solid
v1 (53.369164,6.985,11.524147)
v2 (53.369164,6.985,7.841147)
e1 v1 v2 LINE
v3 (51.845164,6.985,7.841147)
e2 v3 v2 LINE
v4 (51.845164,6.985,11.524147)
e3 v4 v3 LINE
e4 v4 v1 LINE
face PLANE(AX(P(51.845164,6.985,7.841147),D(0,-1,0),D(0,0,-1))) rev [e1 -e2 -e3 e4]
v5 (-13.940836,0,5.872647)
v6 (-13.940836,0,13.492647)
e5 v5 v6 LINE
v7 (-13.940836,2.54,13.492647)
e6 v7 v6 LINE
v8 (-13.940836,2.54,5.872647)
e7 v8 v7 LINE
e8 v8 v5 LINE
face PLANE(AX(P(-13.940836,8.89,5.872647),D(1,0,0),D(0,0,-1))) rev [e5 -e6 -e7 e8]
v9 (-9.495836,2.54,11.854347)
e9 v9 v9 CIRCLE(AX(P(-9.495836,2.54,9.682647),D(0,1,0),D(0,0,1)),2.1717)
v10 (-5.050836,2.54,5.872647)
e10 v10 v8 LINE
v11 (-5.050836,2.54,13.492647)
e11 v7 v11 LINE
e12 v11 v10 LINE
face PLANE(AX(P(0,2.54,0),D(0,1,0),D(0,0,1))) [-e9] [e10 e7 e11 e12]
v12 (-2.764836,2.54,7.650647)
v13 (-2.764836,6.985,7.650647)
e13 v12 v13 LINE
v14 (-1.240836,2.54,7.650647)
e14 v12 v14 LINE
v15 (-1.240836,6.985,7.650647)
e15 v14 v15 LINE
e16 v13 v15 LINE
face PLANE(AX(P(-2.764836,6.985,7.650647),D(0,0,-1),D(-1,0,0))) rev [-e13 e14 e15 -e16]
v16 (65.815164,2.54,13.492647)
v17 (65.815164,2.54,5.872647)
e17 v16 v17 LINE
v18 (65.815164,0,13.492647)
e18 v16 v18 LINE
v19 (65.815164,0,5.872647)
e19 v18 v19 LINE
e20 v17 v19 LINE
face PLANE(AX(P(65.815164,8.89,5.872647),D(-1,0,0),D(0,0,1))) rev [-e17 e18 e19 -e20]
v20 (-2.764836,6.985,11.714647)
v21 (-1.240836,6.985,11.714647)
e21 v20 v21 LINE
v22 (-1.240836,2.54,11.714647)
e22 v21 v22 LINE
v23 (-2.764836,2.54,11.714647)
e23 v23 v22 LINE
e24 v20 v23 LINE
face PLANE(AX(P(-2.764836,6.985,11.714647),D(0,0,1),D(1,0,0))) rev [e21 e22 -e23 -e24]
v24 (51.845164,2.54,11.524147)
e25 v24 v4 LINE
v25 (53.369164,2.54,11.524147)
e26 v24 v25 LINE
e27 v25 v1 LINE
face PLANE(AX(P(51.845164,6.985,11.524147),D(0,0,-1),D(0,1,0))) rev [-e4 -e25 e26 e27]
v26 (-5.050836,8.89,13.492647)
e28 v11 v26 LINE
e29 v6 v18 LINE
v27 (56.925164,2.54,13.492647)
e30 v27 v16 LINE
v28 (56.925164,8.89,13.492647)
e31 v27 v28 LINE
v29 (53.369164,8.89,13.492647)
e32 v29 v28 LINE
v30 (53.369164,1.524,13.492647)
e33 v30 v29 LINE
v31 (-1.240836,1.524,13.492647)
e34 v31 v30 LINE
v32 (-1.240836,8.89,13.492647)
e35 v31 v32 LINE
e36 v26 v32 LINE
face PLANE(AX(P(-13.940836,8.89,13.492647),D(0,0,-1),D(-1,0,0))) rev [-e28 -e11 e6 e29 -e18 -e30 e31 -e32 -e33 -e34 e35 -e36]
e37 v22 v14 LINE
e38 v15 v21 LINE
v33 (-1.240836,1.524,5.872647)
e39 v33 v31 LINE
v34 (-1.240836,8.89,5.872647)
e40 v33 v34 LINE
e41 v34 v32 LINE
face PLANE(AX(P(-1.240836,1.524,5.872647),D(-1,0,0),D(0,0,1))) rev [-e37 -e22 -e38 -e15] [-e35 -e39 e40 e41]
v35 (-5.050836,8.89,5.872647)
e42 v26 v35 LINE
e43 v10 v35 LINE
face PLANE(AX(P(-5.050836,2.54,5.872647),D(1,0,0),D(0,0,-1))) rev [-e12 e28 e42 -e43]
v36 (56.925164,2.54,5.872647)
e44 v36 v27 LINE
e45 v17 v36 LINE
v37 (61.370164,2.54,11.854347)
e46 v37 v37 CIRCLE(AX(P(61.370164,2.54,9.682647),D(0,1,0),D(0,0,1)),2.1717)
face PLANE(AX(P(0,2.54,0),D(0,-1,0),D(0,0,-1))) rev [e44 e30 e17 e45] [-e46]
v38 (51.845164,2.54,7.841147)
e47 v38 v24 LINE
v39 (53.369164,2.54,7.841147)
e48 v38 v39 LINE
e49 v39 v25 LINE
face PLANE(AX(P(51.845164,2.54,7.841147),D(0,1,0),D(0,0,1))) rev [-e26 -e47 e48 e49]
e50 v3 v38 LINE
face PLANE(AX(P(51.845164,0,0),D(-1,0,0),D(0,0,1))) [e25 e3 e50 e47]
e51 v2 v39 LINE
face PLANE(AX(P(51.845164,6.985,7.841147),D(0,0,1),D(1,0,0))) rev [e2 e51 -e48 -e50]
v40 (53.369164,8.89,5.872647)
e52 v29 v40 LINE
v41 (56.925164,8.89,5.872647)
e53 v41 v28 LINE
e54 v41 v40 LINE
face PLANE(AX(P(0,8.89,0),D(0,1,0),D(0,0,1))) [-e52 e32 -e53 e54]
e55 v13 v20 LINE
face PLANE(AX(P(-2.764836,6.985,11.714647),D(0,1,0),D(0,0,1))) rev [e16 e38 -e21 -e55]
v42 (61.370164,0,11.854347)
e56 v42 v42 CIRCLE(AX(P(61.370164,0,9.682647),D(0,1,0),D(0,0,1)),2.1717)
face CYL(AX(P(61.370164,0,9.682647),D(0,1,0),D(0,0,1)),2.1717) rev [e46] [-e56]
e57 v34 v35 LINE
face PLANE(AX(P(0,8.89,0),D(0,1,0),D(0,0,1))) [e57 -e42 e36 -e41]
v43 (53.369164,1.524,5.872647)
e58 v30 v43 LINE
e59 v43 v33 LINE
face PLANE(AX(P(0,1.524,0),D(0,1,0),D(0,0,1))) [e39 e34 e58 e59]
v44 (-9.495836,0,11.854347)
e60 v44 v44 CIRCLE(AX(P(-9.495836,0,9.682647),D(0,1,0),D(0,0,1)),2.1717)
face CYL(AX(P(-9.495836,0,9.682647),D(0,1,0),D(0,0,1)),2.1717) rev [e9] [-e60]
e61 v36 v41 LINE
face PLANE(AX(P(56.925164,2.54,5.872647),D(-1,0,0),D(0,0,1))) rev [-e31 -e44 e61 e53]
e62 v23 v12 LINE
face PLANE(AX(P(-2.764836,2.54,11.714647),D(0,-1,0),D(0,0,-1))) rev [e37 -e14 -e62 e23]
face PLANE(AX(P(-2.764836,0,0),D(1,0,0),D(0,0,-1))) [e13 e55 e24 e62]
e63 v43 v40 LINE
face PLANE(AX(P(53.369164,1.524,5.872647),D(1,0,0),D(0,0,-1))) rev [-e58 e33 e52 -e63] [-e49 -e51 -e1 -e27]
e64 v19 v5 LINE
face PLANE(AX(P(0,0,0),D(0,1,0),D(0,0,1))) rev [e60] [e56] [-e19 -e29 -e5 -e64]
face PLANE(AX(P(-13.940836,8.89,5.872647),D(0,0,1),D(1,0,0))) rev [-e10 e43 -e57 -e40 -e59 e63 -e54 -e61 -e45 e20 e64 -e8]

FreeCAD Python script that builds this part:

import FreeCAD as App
import Part
import Sketcher
Q = App.Units.Quantity


def add_polygon(sketch, points):
    """Adds a closed chain of lines whose ends are joined by coincident constraints."""
    first, n = sketch.GeometryCount, len(points)
    for a, b in zip(points, points[1:] + points[:1]):
        sketch.addGeometry(Part.LineSegment(App.Vector(*a, 0), App.Vector(*b, 0)), False)
    for i in range(n):
        sketch.addConstraint(Sketcher.Constraint("Coincident", first + i, 2, first + (i + 1) % n, 1))

doc = App.newDocument("Part")
body = doc.addObject("PartDesign::Body", "Body")

# Sketch on XZ plane
sketch1 = body.newObject("Sketcher::SketchObject", "Sketch")
sketch1.AttachmentSupport = (doc.getObject("XZ_Plane"), [""])
sketch1.MapMode = "FlatFace"
add_polygon(sketch1, [(-13.940836, 5.872647), (-13.940836, 13.492647), (65.815164, 13.492647), (65.815164, 5.872647)])  # lines 0-3
sketch1.addConstraint(Sketcher.Constraint("Vertical", 0))
sketch1.addConstraint(Sketcher.Constraint("Horizontal", 1))
sketch1.addConstraint(Sketcher.Constraint("Vertical", 2))
sketch1.addConstraint(Sketcher.Constraint("Horizontal", 3))
sketch1.addConstraint(Sketcher.Constraint("DistanceY", 0, 1, 0, 2, Q("0.3 in")))
sketch1.addConstraint(Sketcher.Constraint("DistanceX", 1, 1, 1, 2, Q("3.14 in")))
sketch1.addConstraint(Sketcher.Constraint("DistanceX", 0, 2, -1, 1, 13.940836))
sketch1.addConstraint(Sketcher.Constraint("DistanceY", -1, 1, 0, 2, 13.492647))
pad1 = body.newObject("PartDesign::Pad", "Pad")
pad1.Profile = sketch1
pad1.Length = Q("0.35 in")
pad1.Reversed = True

# Sketch on XZ plane
sketch2 = body.newObject("Sketcher::SketchObject", "Sketch001")
sketch2.AttachmentSupport = (doc.getObject("XZ_Plane"), [""])
sketch2.MapMode = "FlatFace"
sketch2.AttachmentOffset = App.Placement(App.Vector(0, 0, -0.35 * 25.4), App.Rotation())
add_polygon(sketch2, [(-13.940836, 5.872647), (-13.940836, 13.492647), (-5.050836, 13.492647), (-5.050836, 5.872647)])  # lines 0-3
sketch2.addConstraint(Sketcher.Constraint("Vertical", 0))
sketch2.addConstraint(Sketcher.Constraint("Horizontal", 1))
sketch2.addConstraint(Sketcher.Constraint("Vertical", 2))
sketch2.addConstraint(Sketcher.Constraint("Horizontal", 3))
sketch2.addConstraint(Sketcher.Constraint("DistanceY", 0, 1, 0, 2, Q("0.3 in")))
sketch2.addConstraint(Sketcher.Constraint("DistanceX", 1, 1, 1, 2, Q("0.35 in")))
sketch2.addConstraint(Sketcher.Constraint("DistanceX", 0, 2, -1, 1, 13.940836))
sketch2.addConstraint(Sketcher.Constraint("DistanceY", -1, 1, 0, 2, 13.492647))
pocket1 = body.newObject("PartDesign::Pocket", "Pocket")
pocket1.Profile = sketch2
pocket1.Length = Q("0.25 in")
pocket1.Reversed = True

# Sketch on XZ plane
sketch3 = body.newObject("Sketcher::SketchObject", "Sketch002")
sketch3.AttachmentSupport = (doc.getObject("XZ_Plane"), [""])
sketch3.MapMode = "FlatFace"
sketch3.AttachmentOffset = App.Placement(App.Vector(0, 0, -0.35 * 25.4), App.Rotation())
add_polygon(sketch3, [(56.925164, 5.872647), (56.925164, 13.492647), (65.815164, 13.492647), (65.815164, 5.872647)])  # lines 0-3
sketch3.addConstraint(Sketcher.Constraint("Vertical", 0))
sketch3.addConstraint(Sketcher.Constraint("Horizontal", 1))
sketch3.addConstraint(Sketcher.Constraint("Vertical", 2))
sketch3.addConstraint(Sketcher.Constraint("Horizontal", 3))
sketch3.addConstraint(Sketcher.Constraint("DistanceY", 0, 1, 0, 2, Q("0.3 in")))
sketch3.addConstraint(Sketcher.Constraint("DistanceX", 1, 1, 1, 2, Q("0.35 in")))
sketch3.addConstraint(Sketcher.Constraint("DistanceX", -1, 1, 0, 2, 56.925164))
sketch3.addConstraint(Sketcher.Constraint("DistanceY", -1, 1, 0, 2, 13.492647))
pocket2 = body.newObject("PartDesign::Pocket", "Pocket001")
pocket2.Profile = sketch3
pocket2.Length = Q("0.25 in")
pocket2.Reversed = True

# Sketch on XZ plane
sketch4 = body.newObject("Sketcher::SketchObject", "Sketch003")
sketch4.AttachmentSupport = (doc.getObject("XZ_Plane"), [""])
sketch4.MapMode = "FlatFace"
sketch4.AttachmentOffset = App.Placement(App.Vector(0, 0, -0.35 * 25.4), App.Rotation())
add_polygon(sketch4, [(-1.240836, 5.872647), (-1.240836, 13.492647), (53.369164, 13.492647), (53.369164, 5.872647)])  # lines 0-3
sketch4.addConstraint(Sketcher.Constraint("Vertical", 0))
sketch4.addConstraint(Sketcher.Constraint("Horizontal", 1))
sketch4.addConstraint(Sketcher.Constraint("Vertical", 2))
sketch4.addConstraint(Sketcher.Constraint("Horizontal", 3))
sketch4.addConstraint(Sketcher.Constraint("DistanceY", 0, 1, 0, 2, Q("0.3 in")))
sketch4.addConstraint(Sketcher.Constraint("DistanceX", 1, 1, 1, 2, Q("2.15 in")))
sketch4.addConstraint(Sketcher.Constraint("DistanceX", 0, 2, -1, 1, 1.240836))
sketch4.addConstraint(Sketcher.Constraint("DistanceY", -1, 1, 0, 2, 13.492647))
pocket3 = body.newObject("PartDesign::Pocket", "Pocket002")
pocket3.Profile = sketch4
pocket3.Length = Q("0.29 in")
pocket3.Reversed = True

# Sketch on YZ plane
sketch5 = body.newObject("Sketcher::SketchObject", "Sketch004")
sketch5.AttachmentSupport = (doc.getObject("YZ_Plane"), [""])
sketch5.MapMode = "FlatFace"
sketch5.AttachmentOffset = App.Placement(App.Vector(0, 0, -1.240836), App.Rotation())
add_polygon(sketch5, [(6.985, 11.714647), (2.54, 11.714647), (2.54, 7.650647), (6.985, 7.650647)])  # lines 0-3
sketch5.addConstraint(Sketcher.Constraint("Horizontal", 0))
sketch5.addConstraint(Sketcher.Constraint("Vertical", 1))
sketch5.addConstraint(Sketcher.Constraint("Horizontal", 2))
sketch5.addConstraint(Sketcher.Constraint("Vertical", 3))
sketch5.addConstraint(Sketcher.Constraint("DistanceY", 1, 2, 1, 1, Q("0.16 in")))
sketch5.addConstraint(Sketcher.Constraint("DistanceX", -1, 1, 0, 2, Q("0.1 in")))
sketch5.addConstraint(Sketcher.Constraint("DistanceX", 0, 2, 0, 1, Q("0.175 in")))
sketch5.addConstraint(Sketcher.Constraint("DistanceY", -1, 1, 0, 2, 11.714647))
pocket4 = body.newObject("PartDesign::Pocket", "Pocket003")
pocket4.Profile = sketch5
pocket4.Length = Q("0.06 in")

# Sketch on YZ plane
sketch6 = body.newObject("Sketcher::SketchObject", "Sketch005")
sketch6.AttachmentSupport = (doc.getObject("YZ_Plane"), [""])
sketch6.MapMode = "FlatFace"
sketch6.AttachmentOffset = App.Placement(App.Vector(0, 0, 53.369164), App.Rotation())
add_polygon(sketch6, [(6.985, 7.841147), (2.54, 7.841147), (2.54, 11.524147), (6.985, 11.524147)])  # lines 0-3
sketch6.addConstraint(Sketcher.Constraint("Horizontal", 0))
sketch6.addConstraint(Sketcher.Constraint("Vertical", 1))
sketch6.addConstraint(Sketcher.Constraint("Horizontal", 2))
sketch6.addConstraint(Sketcher.Constraint("Vertical", 3))
sketch6.addConstraint(Sketcher.Constraint("DistanceX", -1, 1, 0, 2, Q("0.1 in")))
sketch6.addConstraint(Sketcher.Constraint("DistanceX", 0, 2, 0, 1, Q("0.175 in")))
sketch6.addConstraint(Sketcher.Constraint("DistanceY", 1, 1, 1, 2, Q("0.145 in")))
sketch6.addConstraint(Sketcher.Constraint("DistanceY", -1, 1, 0, 2, 7.841147))
pad2 = body.newObject("PartDesign::Pad", "Pad001")
pad2.Profile = sketch6
pad2.Length = Q("0.06 in")
pad2.Reversed = True

# Sketch on XZ plane
sketch7 = body.newObject("Sketcher::SketchObject", "Sketch006")
sketch7.AttachmentSupport = (doc.getObject("XZ_Plane"), [""])
sketch7.MapMode = "FlatFace"
sketch7.AttachmentOffset = App.Placement(App.Vector(0, 0, -0.1 * 25.4), App.Rotation())
sketch7.addGeometry(Part.Circle(App.Vector(-9.495836, 9.682647, 0), App.Vector(0, 0, 1), 2.1717), False)
sketch7.addConstraint(Sketcher.Constraint("Diameter", 0, Q("0.171 in")))
sketch7.addConstraint(Sketcher.Constraint("DistanceX", 0, 3, -1, 1, 9.495836))
sketch7.addConstraint(Sketcher.Constraint("DistanceY", -1, 1, 0, 3, 9.682647))
pocket5 = body.newObject("PartDesign::Pocket", "Pocket004")
pocket5.Profile = sketch7
pocket5.Length = Q("0.1 in")
pocket5.Reversed = True

# Sketch on XZ plane
sketch8 = body.newObject("Sketcher::SketchObject", "Sketch007")
sketch8.AttachmentSupport = (doc.getObject("XZ_Plane"), [""])
sketch8.MapMode = "FlatFace"
sketch8.AttachmentOffset = App.Placement(App.Vector(0, 0, -0.1 * 25.4), App.Rotation())
sketch8.addGeometry(Part.Circle(App.Vector(61.370164, 9.682647, 0), App.Vector(0, 0, 1), 2.1717), False)
sketch8.addConstraint(Sketcher.Constraint("Diameter", 0, Q("0.171 in")))
sketch8.addConstraint(Sketcher.Constraint("DistanceX", -1, 1, 0, 3, 61.370164))
sketch8.addConstraint(Sketcher.Constraint("DistanceY", -1, 1, 0, 3, 9.682647))
pocket6 = body.newObject("PartDesign::Pocket", "Pocket005")
pocket6.Profile = sketch8
pocket6.Length = Q("0.1 in")
pocket6.Reversed = True

doc.recompute()
